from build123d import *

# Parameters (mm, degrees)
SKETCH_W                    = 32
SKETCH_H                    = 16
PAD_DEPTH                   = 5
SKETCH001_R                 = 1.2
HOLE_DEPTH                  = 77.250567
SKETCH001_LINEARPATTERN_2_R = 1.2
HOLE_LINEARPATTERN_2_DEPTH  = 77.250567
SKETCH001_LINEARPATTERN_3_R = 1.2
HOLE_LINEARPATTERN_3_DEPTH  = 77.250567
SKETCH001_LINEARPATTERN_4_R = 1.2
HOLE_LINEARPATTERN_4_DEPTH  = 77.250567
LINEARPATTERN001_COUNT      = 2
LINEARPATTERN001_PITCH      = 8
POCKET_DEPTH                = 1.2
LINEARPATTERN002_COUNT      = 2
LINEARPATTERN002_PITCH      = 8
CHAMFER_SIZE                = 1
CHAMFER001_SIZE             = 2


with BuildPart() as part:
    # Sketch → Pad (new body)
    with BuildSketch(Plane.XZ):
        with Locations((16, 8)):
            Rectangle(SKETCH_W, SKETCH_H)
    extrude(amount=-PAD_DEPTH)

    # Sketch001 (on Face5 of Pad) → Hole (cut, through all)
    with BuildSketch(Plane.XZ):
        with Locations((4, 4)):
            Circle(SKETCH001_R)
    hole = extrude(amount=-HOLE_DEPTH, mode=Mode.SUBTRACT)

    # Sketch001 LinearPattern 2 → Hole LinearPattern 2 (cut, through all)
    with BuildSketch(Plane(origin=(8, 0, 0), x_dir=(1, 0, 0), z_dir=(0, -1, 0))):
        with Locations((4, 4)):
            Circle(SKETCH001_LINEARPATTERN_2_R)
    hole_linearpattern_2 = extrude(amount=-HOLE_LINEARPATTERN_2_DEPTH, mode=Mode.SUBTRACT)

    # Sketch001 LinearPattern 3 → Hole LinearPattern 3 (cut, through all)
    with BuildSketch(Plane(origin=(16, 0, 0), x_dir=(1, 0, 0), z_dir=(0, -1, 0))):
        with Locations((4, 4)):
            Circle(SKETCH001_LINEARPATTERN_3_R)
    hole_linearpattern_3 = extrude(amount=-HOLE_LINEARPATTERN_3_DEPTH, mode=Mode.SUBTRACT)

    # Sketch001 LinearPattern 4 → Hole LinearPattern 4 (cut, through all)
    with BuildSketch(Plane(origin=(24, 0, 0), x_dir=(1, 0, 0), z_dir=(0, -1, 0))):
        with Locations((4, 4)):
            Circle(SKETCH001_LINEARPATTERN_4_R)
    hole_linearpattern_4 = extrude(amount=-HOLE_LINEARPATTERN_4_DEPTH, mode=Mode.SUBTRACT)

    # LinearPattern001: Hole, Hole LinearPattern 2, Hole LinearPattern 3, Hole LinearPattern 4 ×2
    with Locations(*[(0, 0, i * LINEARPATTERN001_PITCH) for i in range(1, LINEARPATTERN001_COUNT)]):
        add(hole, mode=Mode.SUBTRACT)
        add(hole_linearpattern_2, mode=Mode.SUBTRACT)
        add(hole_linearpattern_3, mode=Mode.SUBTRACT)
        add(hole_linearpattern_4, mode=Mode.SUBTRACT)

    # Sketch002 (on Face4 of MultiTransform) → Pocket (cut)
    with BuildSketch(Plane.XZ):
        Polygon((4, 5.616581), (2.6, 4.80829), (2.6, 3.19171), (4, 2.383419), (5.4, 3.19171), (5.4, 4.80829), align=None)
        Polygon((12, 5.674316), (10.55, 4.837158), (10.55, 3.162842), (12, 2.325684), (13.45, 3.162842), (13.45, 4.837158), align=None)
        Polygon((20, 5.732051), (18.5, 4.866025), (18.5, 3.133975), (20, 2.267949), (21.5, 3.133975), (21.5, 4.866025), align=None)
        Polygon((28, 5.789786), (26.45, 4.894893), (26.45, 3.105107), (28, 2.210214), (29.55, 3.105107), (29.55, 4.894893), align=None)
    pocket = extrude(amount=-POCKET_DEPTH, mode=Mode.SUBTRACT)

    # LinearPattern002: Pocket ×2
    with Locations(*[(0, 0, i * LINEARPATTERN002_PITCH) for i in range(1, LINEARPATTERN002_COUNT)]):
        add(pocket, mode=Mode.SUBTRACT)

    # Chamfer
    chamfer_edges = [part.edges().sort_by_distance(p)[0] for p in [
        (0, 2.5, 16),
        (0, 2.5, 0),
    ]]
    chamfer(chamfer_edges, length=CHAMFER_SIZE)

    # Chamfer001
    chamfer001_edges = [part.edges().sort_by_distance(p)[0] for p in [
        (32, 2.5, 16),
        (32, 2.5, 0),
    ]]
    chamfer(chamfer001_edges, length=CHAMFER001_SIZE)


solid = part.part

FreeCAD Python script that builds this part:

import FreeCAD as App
import Part
import Sketcher

V = App.Vector
Q = App.Units.Quantity


def edges_at(feature, points):
    """Names of the edges that pass closest to the given points."""
    edges = feature.Shape.Edges
    near = lambda p: min(range(len(edges)), key=lambda i: edges[i].distToShape(Part.Vertex(*p))[0])
    return sorted({f"Edge{near(p) + 1}" for p in points})

doc = App.newDocument("Part")
body = doc.addObject("PartDesign::Body", "Body")

sketch1 = doc.addObject("Sketcher::SketchObject", "Sketch")
body.addObject(sketch1)
sketch1.AttachmentSupport = (doc.XZ_Plane, [""])
sketch1.MapMode = "FlatFace"
sketch1.addGeometry([
    Part.LineSegment(V(0, 16, 0), V(0, 0, 0)),
    Part.LineSegment(V(0, 0, 0), V(32, 0, 0)),
    Part.LineSegment(V(32, 0, 0), V(32, 16, 0)),
    Part.LineSegment(V(32, 16, 0), V(0, 16, 0)),
], False)
sketch1.addConstraint([
    Sketcher.Constraint("Coincident", 0, 2, 1, 1),
    Sketcher.Constraint("Coincident", 1, 2, 2, 1),
    Sketcher.Constraint("Coincident", 2, 2, 3, 1),
    Sketcher.Constraint("Coincident", 3, 2, 0, 1),
    Sketcher.Constraint("Vertical", 0),
    Sketcher.Constraint("Horizontal", 1),
    Sketcher.Constraint("Vertical", 2),
    Sketcher.Constraint("Horizontal", 3),
    Sketcher.Constraint("Coincident", 0, 2, -1, 1),
    Sketcher.Constraint("DistanceX", 1, 1, 1, 2, 32.0),
    Sketcher.Constraint("DistanceY", 0, 2, 0, 1, 16.0),
])
pad1 = doc.addObject("PartDesign::Pad", "Pad")
body.addObject(pad1)
pad1.Profile = sketch1
pad1.Length = 5
pad1.Reversed = True

sketch2 = doc.addObject("Sketcher::SketchObject", "Sketch001")
body.addObject(sketch2)
sketch2.AttachmentSupport = (doc.XZ_Plane, [""])
sketch2.MapMode = "FlatFace"
sketch2.addGeometry(Part.Circle(V(4, 4, 0), V(0, 0, 1), 1.2), False)
sketch2.addConstraint([
    Sketcher.Constraint("Diameter", 0, 2.4),
    Sketcher.Constraint("DistanceX", -1, 1, 0, 3, 4.0),
    Sketcher.Constraint("DistanceY", -1, 1, 0, 3, 4.0),
])
pocket1 = doc.addObject("PartDesign::Pocket", "Pocket")
body.addObject(pocket1)
pocket1.Profile = sketch2
pocket1.Type = "ThroughAll"

sketch3 = doc.addObject("Sketcher::SketchObject", "Sketch002")
body.addObject(sketch3)
sketch3.AttachmentSupport = (doc.XZ_Plane, [""])
sketch3.MapMode = "FlatFace"
sketch3.addGeometry(Part.Circle(V(12, 4, 0), V(0, 0, 1), 1.2), False)
sketch3.addConstraint([
    Sketcher.Constraint("Diameter", 0, 2.4),
    Sketcher.Constraint("DistanceX", -1, 1, 0, 3, 12.0),
    Sketcher.Constraint("DistanceY", -1, 1, 0, 3, 4.0),
])
pocket2 = doc.addObject("PartDesign::Pocket", "Pocket001")
body.addObject(pocket2)
pocket2.Profile = sketch3
pocket2.Type = "ThroughAll"

sketch4 = doc.addObject("Sketcher::SketchObject", "Sketch003")
body.addObject(sketch4)
sketch4.AttachmentSupport = (doc.XZ_Plane, [""])
sketch4.MapMode = "FlatFace"
sketch4.addGeometry(Part.Circle(V(20, 4, 0), V(0, 0, 1), 1.2), False)
sketch4.addConstraint([
    Sketcher.Constraint("Diameter", 0, 2.4),
    Sketcher.Constraint("DistanceX", -1, 1, 0, 3, 20.0),
    Sketcher.Constraint("DistanceY", -1, 1, 0, 3, 4.0),
])
pocket3 = doc.addObject("PartDesign::Pocket", "Pocket002")
body.addObject(pocket3)
pocket3.Profile = sketch4
pocket3.Type = "ThroughAll"

sketch5 = doc.addObject("Sketcher::SketchObject", "Sketch004")
body.addObject(sketch5)
sketch5.AttachmentSupport = (doc.XZ_Plane, [""])
sketch5.MapMode = "FlatFace"
sketch5.addGeometry(Part.Circle(V(28, 4, 0), V(0, 0, 1), 1.2), False)
sketch5.addConstraint([
    Sketcher.Constraint("Diameter", 0, 2.4),
    Sketcher.Constraint("DistanceX", -1, 1, 0, 3, 28.0),
    Sketcher.Constraint("DistanceY", -1, 1, 0, 3, 4.0),
])
pocket4 = doc.addObject("PartDesign::Pocket", "Pocket003")
body.addObject(pocket4)
pocket4.Profile = sketch5
pocket4.Type = "ThroughAll"
doc.recompute()

linearpattern = doc.addObject("PartDesign::LinearPattern", "LinearPattern")
body.addObject(linearpattern)
linearpattern.Originals = [pocket1, pocket2, pocket3, pocket4]
linearpattern.Direction = (doc.Z_Axis, [""])
linearpattern.Mode = "offset"
linearpattern.Offset = 8
linearpattern.Occurrences = 2
body.Tip = linearpattern

sketch6 = doc.addObject("Sketcher::SketchObject", "Sketch005")
body.addObject(sketch6)
sketch6.AttachmentSupport = (doc.XZ_Plane, [""])
sketch6.MapMode = "FlatFace"
sketch6.addGeometry([
    Part.LineSegment(V(4, 5.6, 0), V(2.6, 4.8, 0)),
    Part.LineSegment(V(2.6, 4.8, 0), V(2.6, 3.2, 0)),
    Part.LineSegment(V(2.6, 3.2, 0), V(4, 2.4, 0)),
    Part.LineSegment(V(4, 2.4, 0), V(5.4, 3.2, 0)),
    Part.LineSegment(V(5.4, 3.2, 0), V(5.4, 4.8, 0)),
    Part.LineSegment(V(5.4, 4.8, 0), V(4, 5.6, 0)),
    Part.LineSegment(V(12, 5.7, 0), V(10.6, 4.8, 0)),
    Part.LineSegment(V(10.6, 4.8, 0), V(10.6, 3.2, 0)),
    Part.LineSegment(V(10.6, 3.2, 0), V(12, 2.3, 0)),
    Part.LineSegment(V(12, 2.3, 0), V(13.4, 3.2, 0)),
    Part.LineSegment(V(13.4, 3.2, 0), V(13.4, 4.8, 0)),
    Part.LineSegment(V(13.4, 4.8, 0), V(12, 5.7, 0)),
    Part.LineSegment(V(20, 5.7, 0), V(18.5, 4.9, 0)),
    Part.LineSegment(V(18.5, 4.9, 0), V(18.5, 3.1, 0)),
    Part.LineSegment(V(18.5, 3.1, 0), V(20, 2.3, 0)),
    Part.LineSegment(V(20, 2.3, 0), V(21.5, 3.1, 0)),
    Part.LineSegment(V(21.5, 3.1, 0), V(21.5, 4.9, 0)),
    Part.LineSegment(V(21.5, 4.9, 0), V(20, 5.7, 0)),
    Part.LineSegment(V(28, 5.8, 0), V(26.4, 4.9, 0)),
    Part.LineSegment(V(26.4, 4.9, 0), V(26.4, 3.1, 0)),
    Part.LineSegment(V(26.4, 3.1, 0), V(28, 2.2, 0)),
    Part.LineSegment(V(28, 2.2, 0), V(29.6, 3.1, 0)),
    Part.LineSegment(V(29.6, 3.1, 0), V(29.6, 4.9, 0)),
    Part.LineSegment(V(29.6, 4.9, 0), V(28, 5.8, 0)),
], False)
sketch6.addConstraint([
    Sketcher.Constraint("Coincident", 0, 2, 1, 1),
    Sketcher.Constraint("Coincident", 1, 2, 2, 1),
    Sketcher.Constraint("Coincident", 2, 2, 3, 1),
    Sketcher.Constraint("Coincident", 3, 2, 4, 1),
    Sketcher.Constraint("Coincident", 4, 2, 5, 1),
    Sketcher.Constraint("Coincident", 5, 2, 0, 1),
    Sketcher.Constraint("Coincident", 6, 2, 7, 1),
    Sketcher.Constraint("Coincident", 7, 2, 8, 1),
    Sketcher.Constraint("Coincident", 8, 2, 9, 1),
    Sketcher.Constraint("Coincident", 9, 2, 10, 1),
    Sketcher.Constraint("Coincident", 10, 2, 11, 1),
    Sketcher.Constraint("Coincident", 11, 2, 6, 1),
    Sketcher.Constraint("Coincident", 12, 2, 13, 1),
    Sketcher.Constraint("Coincident", 13, 2, 14, 1),
    Sketcher.Constraint("Coincident", 14, 2, 15, 1),
    Sketcher.Constraint("Coincident", 15, 2, 16, 1),
    Sketcher.Constraint("Coincident", 16, 2, 17, 1),
    Sketcher.Constraint("Coincident", 17, 2, 12, 1),
    Sketcher.Constraint("Coincident", 18, 2, 19, 1),
    Sketcher.Constraint("Coincident", 19, 2, 20, 1),
    Sketcher.Constraint("Coincident", 20, 2, 21, 1),
    Sketcher.Constraint("Coincident", 21, 2, 22, 1),
    Sketcher.Constraint("Coincident", 22, 2, 23, 1),
    Sketcher.Constraint("Coincident", 23, 2, 18, 1),
    Sketcher.Constraint("Vertical", 1),
    Sketcher.Constraint("Vertical", 4),
    Sketcher.Constraint("Vertical", 7),
    Sketcher.Constraint("Vertical", 10),
    Sketcher.Constraint("Vertical", 13),
    Sketcher.Constraint("Vertical", 16),
    Sketcher.Constraint("Vertical", 19),
    Sketcher.Constraint("Vertical", 22),
    Sketcher.Constraint("Parallel", 0, 3),
    Sketcher.Constraint("Parallel", 2, 5),
    Sketcher.Constraint("Parallel", 3, 6),
    Sketcher.Constraint("Parallel", 5, 8),
    Sketcher.Constraint("Parallel", 6, 9),
    Sketcher.Constraint("Parallel", 8, 11),
    Sketcher.Constraint("Parallel", 9, 12),
    Sketcher.Constraint("Parallel", 11, 14),
    Sketcher.Constraint("Parallel", 12, 15),
    Sketcher.Constraint("Parallel", 14, 17),
    Sketcher.Constraint("Parallel", 15, 18),
    Sketcher.Constraint("Parallel", 17, 20),
    Sketcher.Constraint("Parallel", 18, 21),
    Sketcher.Constraint("Parallel", 20, 23),
    Sketcher.Constraint("Horizontal", 1, 2, 3, 2),
    Sketcher.Constraint("Horizontal", 0, 2, 4, 2),
    Sketcher.Constraint("Horizontal", 7, 2, 9, 2),
    Sketcher.Constraint("Horizontal", 6, 2, 10, 2),
    Sketcher.Constraint("Horizontal", 13, 2, 15, 2),
    Sketcher.Constraint("Horizontal", 12, 2, 16, 2),
    Sketcher.Constraint("Horizontal", 19, 2, 21, 2),
    Sketcher.Constraint("Horizontal", 18, 2, 22, 2),
    Sketcher.Constraint("Vertical", 2, 2, 5, 2),
    Sketcher.Constraint("Angle", 0, Q("-149.999981 deg")),
    Sketcher.Constraint("DistanceX", -1, 1, 2, 2, 4.0),
    Sketcher.Constraint("DistanceX", -1, 1, 8, 2, 12.0),
    Sketcher.Constraint("DistanceX", -1, 1, 14, 2, 20.0),
    Sketcher.Constraint("DistanceX", -1, 1, 20, 2, 28.0),
    Sketcher.Constraint("DistanceX", 13, 2, 15, 2, 3.0),
    Sketcher.Constraint("DistanceX", -1, 1, 0, 2, 2.6),
    Sketcher.Constraint("DistanceX", 7, 2, 9, 2, 2.9),
    Sketcher.Constraint("DistanceX", 19, 2, 21, 2, 3.1),
    Sketcher.Constraint("DistanceY", 1, 2, 1, 1, 1.61658),
    Sketcher.Constraint("DistanceY", 13, 2, 13, 1, 1.73205),
    Sketcher.Constraint("DistanceY", 7, 2, 7, 1, 1.674316),
    Sketcher.Constraint("DistanceY", 19, 2, 19, 1, 1.789786),
    Sketcher.Constraint("DistanceY", -1, 1, 0, 2, 4.80829),
    Sketcher.Constraint("DistanceY", -1, 1, 7, 2, 3.162842),
    Sketcher.Constraint("DistanceY", -1, 1, 14, 2, 2.267949),
    Sketcher.Constraint("DistanceY", 16, 2, 18, 2, 0.028868),
])
pocket5 = doc.addObject("PartDesign::Pocket", "Pocket004")
body.addObject(pocket5)
pocket5.Profile = sketch6
pocket5.Length = 1.2
doc.recompute()

linearpattern2 = doc.addObject("PartDesign::LinearPattern", "LinearPattern001")
body.addObject(linearpattern2)
linearpattern2.Originals = [pocket5]
linearpattern2.Direction = (doc.Z_Axis, [""])
linearpattern2.Mode = "offset"
linearpattern2.Offset = 8
linearpattern2.Occurrences = 2
body.Tip = linearpattern2
doc.recompute()

chamfer = doc.addObject("PartDesign::Chamfer", "Chamfer")
body.addObject(chamfer)
chamfer.Base = (linearpattern2, edges_at(linearpattern2, [(0, 2.5, 16), (0, 2.5, 0)]))
chamfer.Size = 1
doc.recompute()

chamfer2 = doc.addObject("PartDesign::Chamfer", "Chamfer001")
body.addObject(chamfer2)
chamfer2.Base = (chamfer, edges_at(chamfer, [(32, 2.5, 16), (32, 2.5, 0)]))
chamfer2.Size = 2

doc.recompute()
